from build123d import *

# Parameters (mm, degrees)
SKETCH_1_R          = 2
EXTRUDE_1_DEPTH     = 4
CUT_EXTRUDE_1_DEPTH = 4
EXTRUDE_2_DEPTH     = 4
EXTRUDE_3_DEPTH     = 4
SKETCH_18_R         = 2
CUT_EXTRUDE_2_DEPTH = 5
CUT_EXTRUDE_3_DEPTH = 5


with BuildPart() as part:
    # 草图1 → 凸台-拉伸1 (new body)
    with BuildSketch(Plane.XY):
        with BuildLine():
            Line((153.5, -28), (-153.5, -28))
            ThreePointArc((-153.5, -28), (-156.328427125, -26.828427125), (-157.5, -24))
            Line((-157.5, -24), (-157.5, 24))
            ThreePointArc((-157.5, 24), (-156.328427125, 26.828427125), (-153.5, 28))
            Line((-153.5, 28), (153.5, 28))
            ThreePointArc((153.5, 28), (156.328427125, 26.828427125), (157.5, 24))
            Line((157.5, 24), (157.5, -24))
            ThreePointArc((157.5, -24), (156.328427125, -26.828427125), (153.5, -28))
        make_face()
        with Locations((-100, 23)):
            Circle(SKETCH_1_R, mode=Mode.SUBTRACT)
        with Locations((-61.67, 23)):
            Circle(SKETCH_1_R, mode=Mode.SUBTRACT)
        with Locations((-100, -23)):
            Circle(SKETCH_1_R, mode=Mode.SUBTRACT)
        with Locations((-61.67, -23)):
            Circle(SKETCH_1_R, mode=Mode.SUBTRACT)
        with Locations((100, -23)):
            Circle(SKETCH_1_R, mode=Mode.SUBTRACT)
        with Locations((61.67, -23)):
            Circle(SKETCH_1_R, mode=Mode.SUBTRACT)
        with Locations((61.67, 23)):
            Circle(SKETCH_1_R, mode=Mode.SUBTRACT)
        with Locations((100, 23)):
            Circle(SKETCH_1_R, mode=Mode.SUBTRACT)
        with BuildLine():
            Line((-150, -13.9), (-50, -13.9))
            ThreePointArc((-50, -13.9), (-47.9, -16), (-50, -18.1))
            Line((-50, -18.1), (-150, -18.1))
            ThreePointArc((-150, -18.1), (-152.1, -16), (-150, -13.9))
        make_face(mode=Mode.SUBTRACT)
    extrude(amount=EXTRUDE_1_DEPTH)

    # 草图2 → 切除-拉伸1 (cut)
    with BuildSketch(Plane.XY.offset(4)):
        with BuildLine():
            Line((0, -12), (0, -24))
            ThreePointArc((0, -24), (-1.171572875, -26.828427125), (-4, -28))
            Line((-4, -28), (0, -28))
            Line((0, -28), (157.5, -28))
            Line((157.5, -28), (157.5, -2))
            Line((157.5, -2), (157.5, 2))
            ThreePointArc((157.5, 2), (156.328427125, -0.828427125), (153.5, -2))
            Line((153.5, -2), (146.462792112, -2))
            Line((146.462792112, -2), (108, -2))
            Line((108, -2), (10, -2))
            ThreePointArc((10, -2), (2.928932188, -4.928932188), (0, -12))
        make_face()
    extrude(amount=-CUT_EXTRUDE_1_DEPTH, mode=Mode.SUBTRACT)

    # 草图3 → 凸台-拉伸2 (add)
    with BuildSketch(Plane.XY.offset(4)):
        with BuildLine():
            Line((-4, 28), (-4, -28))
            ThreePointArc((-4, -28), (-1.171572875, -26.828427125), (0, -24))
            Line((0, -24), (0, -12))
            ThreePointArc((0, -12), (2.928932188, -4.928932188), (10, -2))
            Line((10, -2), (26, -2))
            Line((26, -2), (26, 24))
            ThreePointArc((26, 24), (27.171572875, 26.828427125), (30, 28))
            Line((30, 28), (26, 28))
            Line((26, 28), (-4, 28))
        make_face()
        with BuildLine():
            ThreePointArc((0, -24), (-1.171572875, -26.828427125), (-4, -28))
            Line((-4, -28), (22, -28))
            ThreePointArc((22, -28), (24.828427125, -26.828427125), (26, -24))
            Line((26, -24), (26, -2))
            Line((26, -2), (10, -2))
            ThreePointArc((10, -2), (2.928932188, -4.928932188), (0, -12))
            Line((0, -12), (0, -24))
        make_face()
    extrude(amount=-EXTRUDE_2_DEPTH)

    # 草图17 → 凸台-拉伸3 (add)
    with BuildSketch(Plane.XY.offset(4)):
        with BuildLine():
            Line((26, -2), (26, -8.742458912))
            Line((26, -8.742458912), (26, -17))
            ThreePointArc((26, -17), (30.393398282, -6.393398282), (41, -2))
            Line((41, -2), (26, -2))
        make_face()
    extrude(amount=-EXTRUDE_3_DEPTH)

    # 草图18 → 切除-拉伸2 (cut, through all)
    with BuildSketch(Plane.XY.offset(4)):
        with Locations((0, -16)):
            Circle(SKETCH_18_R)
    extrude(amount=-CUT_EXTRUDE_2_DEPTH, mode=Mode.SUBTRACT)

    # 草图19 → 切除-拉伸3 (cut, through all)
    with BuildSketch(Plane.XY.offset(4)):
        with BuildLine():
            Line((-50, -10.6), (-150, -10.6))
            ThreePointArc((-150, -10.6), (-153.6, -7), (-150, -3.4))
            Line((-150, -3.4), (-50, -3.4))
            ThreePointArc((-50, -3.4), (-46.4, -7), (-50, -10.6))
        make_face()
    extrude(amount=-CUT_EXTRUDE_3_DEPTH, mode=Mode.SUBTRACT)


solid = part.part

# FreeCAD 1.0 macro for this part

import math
import FreeCAD as App
import Part
import Sketcher
Q = App.Units.Quantity

doc = App.newDocument("Part")
params = doc.addObject("Spreadsheet::Sheet", "Params")
for row, (alias, value) in enumerate([
    ("sketch1_diameter", "4 mm"),
    ("sketch1_radius", "4 mm"),
    ("sketch1_radius2", "2.1 mm"),
    ("sketch1_width", "307 mm"),
    ("sketch1_width2", "100 mm"),
    ("pad1_length", "4 mm"),
    ("sketch2_radius", "4 mm"),
    ("sketch2_radius2", "10 mm"),
    ("sketch2_height", "12 mm"),
    ("sketch2_width", "161.5 mm"),
    ("pocket1_length", "4 mm"),
    ("sketch3_radius", "4 mm"),
    ("sketch3_width", "26 mm"),
    ("sketch3_height", "56 mm"),
    ("pad2_length", "4 mm"),
    ("sketch4_radius", "15 mm"),
    ("pad3_length", "4 mm"),
    ("sketch5_diameter", "4 mm"),
    ("sketch6_radius", "3.6 mm"),
    ("sketch6_width", "100 mm"),
], start=1):
    params.set(f"A{row}", alias)
    params.set(f"B{row}", "=" + value)
    params.setAlias(f"B{row}", alias)

body = doc.addObject("PartDesign::Body", "Body")

# Sketch on XY plane
sketch1 = body.newObject("Sketcher::SketchObject", "Sketch")
sketch1.AttachmentSupport = (doc.getObject("XY_Plane"), [""])
sketch1.MapMode = "FlatFace"
sketch1.addGeometry([
    Part.LineSegment(App.Vector(-153.5, -28, 0), App.Vector(153.5, -28, 0)),  # 0
    Part.ArcOfCircle(Part.Circle(App.Vector(153.5, -24, 0), App.Vector(0, 0, 1), 4), math.radians(-90), math.radians(0)),  # 1
    Part.LineSegment(App.Vector(157.5, -24, 0), App.Vector(157.5, 24, 0)),  # 2
    Part.ArcOfCircle(Part.Circle(App.Vector(153.5, 24, 0), App.Vector(0, 0, 1), 4), math.radians(0), math.radians(90)),  # 3
    Part.LineSegment(App.Vector(153.5, 28, 0), App.Vector(-153.5, 28, 0)),  # 4
    Part.ArcOfCircle(Part.Circle(App.Vector(-153.5, 24, 0), App.Vector(0, 0, 1), 4), math.radians(90), math.radians(180)),  # 5
    Part.LineSegment(App.Vector(-157.5, 24, 0), App.Vector(-157.5, -24, 0)),  # 6
    Part.ArcOfCircle(Part.Circle(App.Vector(-153.5, -24, 0), App.Vector(0, 0, 1), 4), math.radians(180), math.radians(270)),  # 7
    Part.Circle(App.Vector(100, -23, 0), App.Vector(0, 0, 1), 2),  # 8
    Part.Circle(App.Vector(61.7, -23, 0), App.Vector(0, 0, 1), 2),  # 9
    Part.Circle(App.Vector(-61.7, -23, 0), App.Vector(0, 0, 1), 2),  # 10
    Part.Circle(App.Vector(-100, -23, 0), App.Vector(0, 0, 1), 2),  # 11
    Part.LineSegment(App.Vector(-150, -13.9, 0), App.Vector(-50, -13.9, 0)),  # 12
    Part.ArcOfCircle(Part.Circle(App.Vector(-50, -16, 0), App.Vector(0, 0, 1), 2.1), math.radians(-90), math.radians(90)),  # 13
    Part.LineSegment(App.Vector(-50, -18.1, 0), App.Vector(-150, -18.1, 0)),  # 14
    Part.ArcOfCircle(Part.Circle(App.Vector(-150, -16, 0), App.Vector(0, 0, 1), 2.1), math.radians(90), math.radians(270)),  # 15
    Part.Circle(App.Vector(100, 23, 0), App.Vector(0, 0, 1), 2),  # 16
    Part.Circle(App.Vector(61.7, 23, 0), App.Vector(0, 0, 1), 2),  # 17
    Part.Circle(App.Vector(-61.7, 23, 0), App.Vector(0, 0, 1), 2),  # 18
    Part.Circle(App.Vector(-100, 23, 0), App.Vector(0, 0, 1), 2),  # 19
], False)
sketch1.addConstraint([
    Sketcher.Constraint("Tangent", 0, 2, 1, 1),
    Sketcher.Constraint("Tangent", 1, 2, 2, 1),
    Sketcher.Constraint("Tangent", 2, 2, 3, 1),
    Sketcher.Constraint("Tangent", 3, 2, 4, 1),
    Sketcher.Constraint("Tangent", 4, 2, 5, 1),
    Sketcher.Constraint("Tangent", 5, 2, 6, 1),
    Sketcher.Constraint("Tangent", 6, 2, 7, 1),
    Sketcher.Constraint("Tangent", 7, 2, 0, 1),
    Sketcher.Constraint("Tangent", 12, 2, 13, 2),
    Sketcher.Constraint("Tangent", 13, 1, 14, 1),
    Sketcher.Constraint("Tangent", 14, 2, 15, 2),
    Sketcher.Constraint("Tangent", 15, 1, 12, 1),
    Sketcher.Constraint("Horizontal", 0),
    Sketcher.Constraint("Vertical", 2),
    Sketcher.Constraint("Horizontal", 4),
    Sketcher.Constraint("Vertical", 6),
    Sketcher.Constraint("Horizontal", 12),
    Sketcher.Constraint("Horizontal", 14),
    Sketcher.Constraint("Equal", 1, 3),
    Sketcher.Constraint("Equal", 3, 5),
    Sketcher.Constraint("Equal", 5, 7),
    Sketcher.Constraint("Equal", 8, 9),
    Sketcher.Constraint("Equal", 9, 10),
    Sketcher.Constraint("Equal", 10, 11),
    Sketcher.Constraint("Equal", 11, 16),
    Sketcher.Constraint("Equal", 16, 17),
    Sketcher.Constraint("Equal", 17, 18),
    Sketcher.Constraint("Equal", 18, 19),
    Sketcher.Constraint("Symmetric", 1, 3, 5, 3, -1, 1),
    Sketcher.Constraint("Symmetric", 11, 3, 16, 3, -1, 1),
    Sketcher.Constraint("Symmetric", 10, 3, 17, 3, -1, 1),
    Sketcher.Constraint("Symmetric", 9, 3, 18, 3, -1, 1),
    Sketcher.Constraint("Symmetric", 8, 3, 19, 3, -1, 1),
    Sketcher.Constraint("Symmetric", 9, 3, 10, 3, -2),
    Sketcher.Constraint("Symmetric", 8, 3, 11, 3, -2),
    Sketcher.Constraint("Horizontal", 8, 3, 9, 3),
    Sketcher.Constraint("Diameter", 8, Q("4 mm")),
    Sketcher.Constraint("Radius", 1, Q("4 mm")),
    Sketcher.Constraint("Radius", 13, Q("2.1 mm")),
    Sketcher.Constraint("DistanceX", 0, 1, 0, 2, Q("307 mm")),
    Sketcher.Constraint("DistanceX", 12, 1, 12, 2, Q("100 mm")),
    Sketcher.Constraint("DistanceY", 2, 1, 2, 2, Q("48 mm")),
    Sketcher.Constraint("DistanceX", -1, 1, 8, 3, Q("100 mm")),
    Sketcher.Constraint("DistanceY", 8, 3, -1, 1, Q("23 mm")),
    Sketcher.Constraint("DistanceX", 13, 3, -1, 1, Q("50 mm")),
    Sketcher.Constraint("DistanceY", 13, 3, -1, 1, Q("16 mm")),
    Sketcher.Constraint("DistanceX", -1, 1, 9, 3, Q("61.67 mm")),
])
sketch1.setExpression("Constraints[36]", "Params.sketch1_diameter")
sketch1.setExpression("Constraints[37]", "Params.sketch1_radius")
sketch1.setExpression("Constraints[38]", "Params.sketch1_radius2")
sketch1.setExpression("Constraints[39]", "Params.sketch1_width")
sketch1.setExpression("Constraints[40]", "Params.sketch1_width2")
pad1 = body.newObject("PartDesign::Pad", "Pad")
pad1.Profile = sketch1
pad1.setExpression("Length", "Params.pad1_length")

# Sketch on XY plane
sketch2 = body.newObject("Sketcher::SketchObject", "Sketch001")
sketch2.AttachmentSupport = (doc.getObject("XY_Plane"), [""])
sketch2.MapMode = "FlatFace"
sketch2.AttachmentOffset = App.Placement(App.Vector(0, 0, 4), App.Rotation())
sketch2.addGeometry([
    Part.LineSegment(App.Vector(0, -12, 0), App.Vector(0, -24, 0)),  # 0
    Part.ArcOfCircle(Part.Circle(App.Vector(-4, -24, 0), App.Vector(0, 0, 1), 4), math.radians(-90), math.radians(0)),  # 1
    Part.LineSegment(App.Vector(-4, -28, 0), App.Vector(157.5, -28, 0)),  # 2
    Part.LineSegment(App.Vector(157.5, -28, 0), App.Vector(157.5, 2, 0)),  # 3
    Part.ArcOfCircle(Part.Circle(App.Vector(153.5, 2, 0), App.Vector(0, 0, 1), 4), math.radians(-90), math.radians(0)),  # 4
    Part.LineSegment(App.Vector(153.5, -2, 0), App.Vector(10, -2, 0)),  # 5
    Part.ArcOfCircle(Part.Circle(App.Vector(10, -12, 0), App.Vector(0, 0, 1), 10), math.radians(90), math.radians(180)),  # 6
], False)
sketch2.addConstraint([
    Sketcher.Constraint("Tangent", 0, 2, 1, 2),
    Sketcher.Constraint("Tangent", 1, 1, 2, 1),
    Sketcher.Constraint("Coincident", 2, 2, 3, 1),
    Sketcher.Constraint("Tangent", 3, 2, 4, 2),
    Sketcher.Constraint("Tangent", 4, 1, 5, 1),
    Sketcher.Constraint("Tangent", 5, 2, 6, 1),
    Sketcher.Constraint("Tangent", 6, 2, 0, 1),
    Sketcher.Constraint("Vertical", 0),
    Sketcher.Constraint("Horizontal", 2),
    Sketcher.Constraint("Vertical", 3),
    Sketcher.Constraint("Horizontal", 5),
    Sketcher.Constraint("Equal", 1, 4),
    Sketcher.Constraint("PointOnObject", 0, 2, -2),
    Sketcher.Constraint("Radius", 1, Q("4 mm")),
    Sketcher.Constraint("Radius", 6, Q("10 mm")),
    Sketcher.Constraint("DistanceY", 0, 2, 0, 1, Q("12 mm")),
    Sketcher.Constraint("DistanceX", 2, 1, 2, 2, Q("161.5 mm")),
    Sketcher.Constraint("DistanceY", 1, 3, -1, 1, Q("24 mm")),
])
sketch2.setExpression("Constraints[13]", "Params.sketch2_radius")
sketch2.setExpression("Constraints[14]", "Params.sketch2_radius2")
sketch2.setExpression("Constraints[15]", "Params.sketch2_height")
sketch2.setExpression("Constraints[16]", "Params.sketch2_width")
pocket1 = body.newObject("PartDesign::Pocket", "Pocket")
pocket1.Profile = sketch2
pocket1.setExpression("Length", "Params.pocket1_length")

# Sketch on XY plane
sketch3 = body.newObject("Sketcher::SketchObject", "Sketch002")
sketch3.AttachmentSupport = (doc.getObject("XY_Plane"), [""])
sketch3.MapMode = "FlatFace"
sketch3.AttachmentOffset = App.Placement(App.Vector(0, 0, 4), App.Rotation())
sketch3.addGeometry([
    Part.LineSegment(App.Vector(-4, 28, 0), App.Vector(-4, -28, 0)),  # 0
    Part.LineSegment(App.Vector(-4, -28, 0), App.Vector(22, -28, 0)),  # 1
    Part.ArcOfCircle(Part.Circle(App.Vector(22, -24, 0), App.Vector(0, 0, 1), 4), math.radians(-90), math.radians(0)),  # 2
    Part.LineSegment(App.Vector(26, -24, 0), App.Vector(26, 24, 0)),  # 3
    Part.ArcOfCircle(Part.Circle(App.Vector(30, 24, 0), App.Vector(0, 0, 1), 4), math.radians(90), math.radians(180)),  # 4
    Part.LineSegment(App.Vector(30, 28, 0), App.Vector(-4, 28, 0)),  # 5
], False)
sketch3.addConstraint([
    Sketcher.Constraint("Coincident", 0, 2, 1, 1),
    Sketcher.Constraint("Tangent", 1, 2, 2, 1),
    Sketcher.Constraint("Tangent", 2, 2, 3, 1),
    Sketcher.Constraint("Tangent", 3, 2, 4, 2),
    Sketcher.Constraint("Tangent", 4, 1, 5, 1),
    Sketcher.Constraint("Coincident", 5, 2, 0, 1),
    Sketcher.Constraint("Vertical", 0),
    Sketcher.Constraint("Horizontal", 1),
    Sketcher.Constraint("Vertical", 3),
    Sketcher.Constraint("Horizontal", 5),
    Sketcher.Constraint("Equal", 2, 4),
    Sketcher.Constraint("Radius", 2, Q("4 mm")),
    Sketcher.Constraint("DistanceX", 1, 1, 1, 2, Q("26 mm")),
    Sketcher.Constraint("DistanceY", 0, 2, 0, 1, Q("56 mm")),
    Sketcher.Constraint("DistanceX", -1, 1, 2, 3, Q("22 mm")),
    Sketcher.Constraint("DistanceY", 2, 3, -1, 1, Q("24 mm")),
])
sketch3.setExpression("Constraints[11]", "Params.sketch3_radius")
sketch3.setExpression("Constraints[12]", "Params.sketch3_width")
sketch3.setExpression("Constraints[13]", "Params.sketch3_height")
pad2 = body.newObject("PartDesign::Pad", "Pad001")
pad2.Profile = sketch3
pad2.setExpression("Length", "Params.pad2_length")
pad2.Reversed = True

# Sketch on XY plane
sketch4 = body.newObject("Sketcher::SketchObject", "Sketch003")
sketch4.AttachmentSupport = (doc.getObject("XY_Plane"), [""])
sketch4.MapMode = "FlatFace"
sketch4.AttachmentOffset = App.Placement(App.Vector(0, 0, 4), App.Rotation())
sketch4.addGeometry([
    Part.LineSegment(App.Vector(26, -2, 0), App.Vector(26, -17, 0)),
    Part.ArcOfCircle(Part.Circle(App.Vector(41, -17, 0), App.Vector(0, 0, 1), 15), math.radians(90), math.radians(180)),
    Part.LineSegment(App.Vector(41, -2, 0), App.Vector(26, -2, 0)),
], False)
sketch4.addConstraint([
    Sketcher.Constraint("Tangent", 0, 2, 1, 2),
    Sketcher.Constraint("Tangent", 1, 1, 2, 1),
    Sketcher.Constraint("Coincident", 2, 2, 0, 1),
    Sketcher.Constraint("Vertical", 0),
    Sketcher.Constraint("Horizontal", 2),
    Sketcher.Constraint("Radius", 1, Q("15 mm")),
    Sketcher.Constraint("DistanceX", -1, 1, 1, 3, Q("41 mm")),
    Sketcher.Constraint("DistanceY", 1, 3, -1, 1, Q("17 mm")),
])
sketch4.setExpression("Constraints[5]", "Params.sketch4_radius")
pad3 = body.newObject("PartDesign::Pad", "Pad002")
pad3.Profile = sketch4
pad3.setExpression("Length", "Params.pad3_length")
pad3.Reversed = True

# Sketch on XY plane
sketch5 = body.newObject("Sketcher::SketchObject", "Sketch004")
sketch5.AttachmentSupport = (doc.getObject("XY_Plane"), [""])
sketch5.MapMode = "FlatFace"
sketch5.AttachmentOffset = App.Placement(App.Vector(0, 0, 4), App.Rotation())
sketch5.addGeometry(Part.Circle(App.Vector(0, -16, 0), App.Vector(0, 0, 1), 2), False)
sketch5.addConstraint([
    Sketcher.Constraint("PointOnObject", 0, 3, -2),
    Sketcher.Constraint("Diameter", 0, Q("4 mm")),
    Sketcher.Constraint("DistanceY", 0, 3, -1, 1, Q("16 mm")),
])
sketch5.setExpression("Constraints[1]", "Params.sketch5_diameter")
pocket2 = body.newObject("PartDesign::Pocket", "Pocket001")
pocket2.Profile = sketch5
pocket2.Type = "ThroughAll"

# Sketch on XY plane
sketch6 = body.newObject("Sketcher::SketchObject", "Sketch005")
sketch6.AttachmentSupport = (doc.getObject("XY_Plane"), [""])
sketch6.MapMode = "FlatFace"
sketch6.AttachmentOffset = App.Placement(App.Vector(0, 0, 4), App.Rotation())
sketch6.addGeometry([
    Part.LineSegment(App.Vector(-150, -10.6, 0), App.Vector(-50, -10.6, 0)),
    Part.ArcOfCircle(Part.Circle(App.Vector(-50, -7, 0), App.Vector(0, 0, 1), 3.6), math.radians(-90), math.radians(90)),
    Part.LineSegment(App.Vector(-50, -3.4, 0), App.Vector(-150, -3.4, 0)),
    Part.ArcOfCircle(Part.Circle(App.Vector(-150, -7, 0), App.Vector(0, 0, 1), 3.6), math.radians(90), math.radians(270)),
], False)
sketch6.addConstraint([
    Sketcher.Constraint("Tangent", 0, 2, 1, 1),
    Sketcher.Constraint("Tangent", 1, 2, 2, 1),
    Sketcher.Constraint("Tangent", 2, 2, 3, 1),
    Sketcher.Constraint("Tangent", 3, 2, 0, 1),
    Sketcher.Constraint("Horizontal", 0),
    Sketcher.Constraint("Horizontal", 2),
    Sketcher.Constraint("Radius", 1, Q("3.6 mm")),
    Sketcher.Constraint("DistanceX", 0, 1, 0, 2, Q("100 mm")),
    Sketcher.Constraint("DistanceX", 1, 3, -1, 1, Q("50 mm")),
    Sketcher.Constraint("DistanceY", 1, 3, -1, 1, Q("7 mm")),
])
sketch6.setExpression("Constraints[6]", "Params.sketch6_radius")
sketch6.setExpression("Constraints[7]", "Params.sketch6_width")
pocket3 = body.newObject("PartDesign::Pocket", "Pocket002")
pocket3.Profile = sketch6
pocket3.Type = "ThroughAll"

doc.recompute()
